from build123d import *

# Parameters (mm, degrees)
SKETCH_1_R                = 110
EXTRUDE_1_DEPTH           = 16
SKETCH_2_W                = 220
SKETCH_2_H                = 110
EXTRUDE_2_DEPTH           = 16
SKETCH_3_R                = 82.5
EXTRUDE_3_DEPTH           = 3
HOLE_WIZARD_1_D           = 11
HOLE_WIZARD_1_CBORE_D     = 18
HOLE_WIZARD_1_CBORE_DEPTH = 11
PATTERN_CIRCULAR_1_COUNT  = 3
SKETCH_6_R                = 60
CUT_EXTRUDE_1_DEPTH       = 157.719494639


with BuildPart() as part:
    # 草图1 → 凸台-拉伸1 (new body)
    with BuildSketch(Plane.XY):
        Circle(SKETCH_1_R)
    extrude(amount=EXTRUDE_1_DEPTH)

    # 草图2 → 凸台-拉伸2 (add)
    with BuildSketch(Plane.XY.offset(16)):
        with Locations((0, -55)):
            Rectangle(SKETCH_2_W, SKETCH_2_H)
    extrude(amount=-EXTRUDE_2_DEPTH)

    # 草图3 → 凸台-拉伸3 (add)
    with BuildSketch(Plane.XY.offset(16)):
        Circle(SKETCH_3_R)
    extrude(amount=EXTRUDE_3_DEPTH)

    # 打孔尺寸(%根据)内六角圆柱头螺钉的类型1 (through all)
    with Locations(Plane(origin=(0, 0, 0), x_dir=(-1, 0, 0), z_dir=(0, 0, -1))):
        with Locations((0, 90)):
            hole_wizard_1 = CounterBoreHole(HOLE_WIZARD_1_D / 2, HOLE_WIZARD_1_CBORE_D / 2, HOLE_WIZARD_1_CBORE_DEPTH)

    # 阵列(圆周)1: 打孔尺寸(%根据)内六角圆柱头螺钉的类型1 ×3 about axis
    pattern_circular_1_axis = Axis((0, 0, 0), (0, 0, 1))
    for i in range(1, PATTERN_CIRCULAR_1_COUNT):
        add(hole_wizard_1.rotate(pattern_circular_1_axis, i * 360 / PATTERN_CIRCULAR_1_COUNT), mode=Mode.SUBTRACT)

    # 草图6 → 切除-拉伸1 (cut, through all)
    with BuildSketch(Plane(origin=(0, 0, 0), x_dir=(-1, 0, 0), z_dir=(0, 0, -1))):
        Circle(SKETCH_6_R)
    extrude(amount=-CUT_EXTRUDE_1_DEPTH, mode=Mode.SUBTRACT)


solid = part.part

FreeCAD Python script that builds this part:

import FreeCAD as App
import Part
import Sketcher

doc = App.newDocument("Part")
body = doc.addObject("PartDesign::Body", "Body")

sketch1 = doc.addObject("Sketcher::SketchObject", "Sketch")
body.addObject(sketch1)
sketch1.AttachmentSupport = (doc.XY_Plane, [""])
sketch1.MapMode = "FlatFace"
sketch1.addGeometry(Part.Circle(App.Vector(0, 0, 0), App.Vector(0, 0, 1), 110), False)
sketch1.addConstraint(Sketcher.Constraint("Coincident", 0, 3, -1, 1))
sketch1.addConstraint(Sketcher.Constraint("Diameter", 0, 220.0))
pad1 = doc.addObject("PartDesign::Pad", "Pad")
body.addObject(pad1)
pad1.Profile = sketch1
pad1.Length = 16

sketch2 = doc.addObject("Sketcher::SketchObject", "Sketch001")
body.addObject(sketch2)
sketch2.AttachmentSupport = (doc.XY_Plane, [""])
sketch2.MapMode = "FlatFace"
sketch2.AttachmentOffset = App.Placement(App.Vector(0, 0, 16), App.Rotation())
sketch2.addGeometry(Part.LineSegment(App.Vector(-110, 0, 0), App.Vector(-110, -110, 0)), False)
sketch2.addGeometry(Part.LineSegment(App.Vector(-110, -110, 0), App.Vector(110, -110, 0)), False)
sketch2.addGeometry(Part.LineSegment(App.Vector(110, -110, 0), App.Vector(110, 0, 0)), False)
sketch2.addGeometry(Part.LineSegment(App.Vector(110, 0, 0), App.Vector(-110, 0, 0)), False)
sketch2.addConstraint(Sketcher.Constraint("Coincident", 0, 2, 1, 1))
sketch2.addConstraint(Sketcher.Constraint("Coincident", 1, 2, 2, 1))
sketch2.addConstraint(Sketcher.Constraint("Coincident", 2, 2, 3, 1))
sketch2.addConstraint(Sketcher.Constraint("Coincident", 3, 2, 0, 1))
sketch2.addConstraint(Sketcher.Constraint("Vertical", 0))
sketch2.addConstraint(Sketcher.Constraint("Horizontal", 1))
sketch2.addConstraint(Sketcher.Constraint("Vertical", 2))
sketch2.addConstraint(Sketcher.Constraint("Horizontal", 3))
sketch2.addConstraint(Sketcher.Constraint("Symmetric", 2, 2, 3, 2, -1, 1))
sketch2.addConstraint(Sketcher.Constraint("DistanceX", 1, 1, 1, 2, 220.0))
sketch2.addConstraint(Sketcher.Constraint("DistanceY", 0, 2, 0, 1, 110.0))
pad2 = doc.addObject("PartDesign::Pad", "Pad001")
body.addObject(pad2)
pad2.Profile = sketch2
pad2.Length = 16
pad2.Reversed = True

sketch3 = doc.addObject("Sketcher::SketchObject", "Sketch002")
body.addObject(sketch3)
sketch3.AttachmentSupport = (doc.XY_Plane, [""])
sketch3.MapMode = "FlatFace"
sketch3.AttachmentOffset = App.Placement(App.Vector(0, 0, 16), App.Rotation())
sketch3.addGeometry(Part.Circle(App.Vector(0, 0, 0), App.Vector(0, 0, 1), 82.5), False)
sketch3.addConstraint(Sketcher.Constraint("Coincident", 0, 3, -1, 1))
sketch3.addConstraint(Sketcher.Constraint("Diameter", 0, 165.0))
pad3 = doc.addObject("PartDesign::Pad", "Pad002")
body.addObject(pad3)
pad3.Profile = sketch3
pad3.Length = 3

sketch4 = doc.addObject("Sketcher::SketchObject", "Sketch003")
body.addObject(sketch4)
sketch4.AttachmentSupport = (doc.XY_Plane, [""])
sketch4.MapMode = "FlatFace"
sketch4.addGeometry(Part.Circle(App.Vector(0, 90, 0), App.Vector(0, 0, 1), 5.5), False)
sketch4.addConstraint(Sketcher.Constraint("PointOnObject", 0, 3, -2))
sketch4.addConstraint(Sketcher.Constraint("Diameter", 0, 11.0))
sketch4.addConstraint(Sketcher.Constraint("DistanceY", -1, 1, 0, 3, 90.0))
doc.recompute()
hole = doc.addObject("PartDesign::Hole", "Hole")
body.addObject(hole)
hole.Profile = sketch4
hole.ThreadType = "None"
hole.Diameter = 11
hole.DepthType = "ThroughAll"
hole.HoleCutType = "Counterbore"
hole.HoleCutDiameter = 18
hole.HoleCutDepth = 11
hole.Reversed = True
doc.recompute()

polarpattern = doc.addObject("PartDesign::PolarPattern", "PolarPattern")
body.addObject(polarpattern)
polarpattern.Originals = [hole]
polarpattern.Axis = (doc.Z_Axis, [""])
polarpattern.Angle = 360
polarpattern.Occurrences = 3
body.Tip = polarpattern

sketch5 = doc.addObject("Sketcher::SketchObject", "Sketch004")
body.addObject(sketch5)
sketch5.AttachmentSupport = (doc.XY_Plane, [""])
sketch5.MapMode = "FlatFace"
sketch5.addGeometry(Part.Circle(App.Vector(0, 0, 0), App.Vector(0, 0, 1), 60), False)
sketch5.addConstraint(Sketcher.Constraint("Coincident", 0, 3, -1, 1))
sketch5.addConstraint(Sketcher.Constraint("Diameter", 0, 120.0))
pocket1 = doc.addObject("PartDesign::Pocket", "Pocket")
body.addObject(pocket1)
pocket1.Profile = sketch5
pocket1.Type = "ThroughAll"
pocket1.Reversed = True

doc.recompute()
